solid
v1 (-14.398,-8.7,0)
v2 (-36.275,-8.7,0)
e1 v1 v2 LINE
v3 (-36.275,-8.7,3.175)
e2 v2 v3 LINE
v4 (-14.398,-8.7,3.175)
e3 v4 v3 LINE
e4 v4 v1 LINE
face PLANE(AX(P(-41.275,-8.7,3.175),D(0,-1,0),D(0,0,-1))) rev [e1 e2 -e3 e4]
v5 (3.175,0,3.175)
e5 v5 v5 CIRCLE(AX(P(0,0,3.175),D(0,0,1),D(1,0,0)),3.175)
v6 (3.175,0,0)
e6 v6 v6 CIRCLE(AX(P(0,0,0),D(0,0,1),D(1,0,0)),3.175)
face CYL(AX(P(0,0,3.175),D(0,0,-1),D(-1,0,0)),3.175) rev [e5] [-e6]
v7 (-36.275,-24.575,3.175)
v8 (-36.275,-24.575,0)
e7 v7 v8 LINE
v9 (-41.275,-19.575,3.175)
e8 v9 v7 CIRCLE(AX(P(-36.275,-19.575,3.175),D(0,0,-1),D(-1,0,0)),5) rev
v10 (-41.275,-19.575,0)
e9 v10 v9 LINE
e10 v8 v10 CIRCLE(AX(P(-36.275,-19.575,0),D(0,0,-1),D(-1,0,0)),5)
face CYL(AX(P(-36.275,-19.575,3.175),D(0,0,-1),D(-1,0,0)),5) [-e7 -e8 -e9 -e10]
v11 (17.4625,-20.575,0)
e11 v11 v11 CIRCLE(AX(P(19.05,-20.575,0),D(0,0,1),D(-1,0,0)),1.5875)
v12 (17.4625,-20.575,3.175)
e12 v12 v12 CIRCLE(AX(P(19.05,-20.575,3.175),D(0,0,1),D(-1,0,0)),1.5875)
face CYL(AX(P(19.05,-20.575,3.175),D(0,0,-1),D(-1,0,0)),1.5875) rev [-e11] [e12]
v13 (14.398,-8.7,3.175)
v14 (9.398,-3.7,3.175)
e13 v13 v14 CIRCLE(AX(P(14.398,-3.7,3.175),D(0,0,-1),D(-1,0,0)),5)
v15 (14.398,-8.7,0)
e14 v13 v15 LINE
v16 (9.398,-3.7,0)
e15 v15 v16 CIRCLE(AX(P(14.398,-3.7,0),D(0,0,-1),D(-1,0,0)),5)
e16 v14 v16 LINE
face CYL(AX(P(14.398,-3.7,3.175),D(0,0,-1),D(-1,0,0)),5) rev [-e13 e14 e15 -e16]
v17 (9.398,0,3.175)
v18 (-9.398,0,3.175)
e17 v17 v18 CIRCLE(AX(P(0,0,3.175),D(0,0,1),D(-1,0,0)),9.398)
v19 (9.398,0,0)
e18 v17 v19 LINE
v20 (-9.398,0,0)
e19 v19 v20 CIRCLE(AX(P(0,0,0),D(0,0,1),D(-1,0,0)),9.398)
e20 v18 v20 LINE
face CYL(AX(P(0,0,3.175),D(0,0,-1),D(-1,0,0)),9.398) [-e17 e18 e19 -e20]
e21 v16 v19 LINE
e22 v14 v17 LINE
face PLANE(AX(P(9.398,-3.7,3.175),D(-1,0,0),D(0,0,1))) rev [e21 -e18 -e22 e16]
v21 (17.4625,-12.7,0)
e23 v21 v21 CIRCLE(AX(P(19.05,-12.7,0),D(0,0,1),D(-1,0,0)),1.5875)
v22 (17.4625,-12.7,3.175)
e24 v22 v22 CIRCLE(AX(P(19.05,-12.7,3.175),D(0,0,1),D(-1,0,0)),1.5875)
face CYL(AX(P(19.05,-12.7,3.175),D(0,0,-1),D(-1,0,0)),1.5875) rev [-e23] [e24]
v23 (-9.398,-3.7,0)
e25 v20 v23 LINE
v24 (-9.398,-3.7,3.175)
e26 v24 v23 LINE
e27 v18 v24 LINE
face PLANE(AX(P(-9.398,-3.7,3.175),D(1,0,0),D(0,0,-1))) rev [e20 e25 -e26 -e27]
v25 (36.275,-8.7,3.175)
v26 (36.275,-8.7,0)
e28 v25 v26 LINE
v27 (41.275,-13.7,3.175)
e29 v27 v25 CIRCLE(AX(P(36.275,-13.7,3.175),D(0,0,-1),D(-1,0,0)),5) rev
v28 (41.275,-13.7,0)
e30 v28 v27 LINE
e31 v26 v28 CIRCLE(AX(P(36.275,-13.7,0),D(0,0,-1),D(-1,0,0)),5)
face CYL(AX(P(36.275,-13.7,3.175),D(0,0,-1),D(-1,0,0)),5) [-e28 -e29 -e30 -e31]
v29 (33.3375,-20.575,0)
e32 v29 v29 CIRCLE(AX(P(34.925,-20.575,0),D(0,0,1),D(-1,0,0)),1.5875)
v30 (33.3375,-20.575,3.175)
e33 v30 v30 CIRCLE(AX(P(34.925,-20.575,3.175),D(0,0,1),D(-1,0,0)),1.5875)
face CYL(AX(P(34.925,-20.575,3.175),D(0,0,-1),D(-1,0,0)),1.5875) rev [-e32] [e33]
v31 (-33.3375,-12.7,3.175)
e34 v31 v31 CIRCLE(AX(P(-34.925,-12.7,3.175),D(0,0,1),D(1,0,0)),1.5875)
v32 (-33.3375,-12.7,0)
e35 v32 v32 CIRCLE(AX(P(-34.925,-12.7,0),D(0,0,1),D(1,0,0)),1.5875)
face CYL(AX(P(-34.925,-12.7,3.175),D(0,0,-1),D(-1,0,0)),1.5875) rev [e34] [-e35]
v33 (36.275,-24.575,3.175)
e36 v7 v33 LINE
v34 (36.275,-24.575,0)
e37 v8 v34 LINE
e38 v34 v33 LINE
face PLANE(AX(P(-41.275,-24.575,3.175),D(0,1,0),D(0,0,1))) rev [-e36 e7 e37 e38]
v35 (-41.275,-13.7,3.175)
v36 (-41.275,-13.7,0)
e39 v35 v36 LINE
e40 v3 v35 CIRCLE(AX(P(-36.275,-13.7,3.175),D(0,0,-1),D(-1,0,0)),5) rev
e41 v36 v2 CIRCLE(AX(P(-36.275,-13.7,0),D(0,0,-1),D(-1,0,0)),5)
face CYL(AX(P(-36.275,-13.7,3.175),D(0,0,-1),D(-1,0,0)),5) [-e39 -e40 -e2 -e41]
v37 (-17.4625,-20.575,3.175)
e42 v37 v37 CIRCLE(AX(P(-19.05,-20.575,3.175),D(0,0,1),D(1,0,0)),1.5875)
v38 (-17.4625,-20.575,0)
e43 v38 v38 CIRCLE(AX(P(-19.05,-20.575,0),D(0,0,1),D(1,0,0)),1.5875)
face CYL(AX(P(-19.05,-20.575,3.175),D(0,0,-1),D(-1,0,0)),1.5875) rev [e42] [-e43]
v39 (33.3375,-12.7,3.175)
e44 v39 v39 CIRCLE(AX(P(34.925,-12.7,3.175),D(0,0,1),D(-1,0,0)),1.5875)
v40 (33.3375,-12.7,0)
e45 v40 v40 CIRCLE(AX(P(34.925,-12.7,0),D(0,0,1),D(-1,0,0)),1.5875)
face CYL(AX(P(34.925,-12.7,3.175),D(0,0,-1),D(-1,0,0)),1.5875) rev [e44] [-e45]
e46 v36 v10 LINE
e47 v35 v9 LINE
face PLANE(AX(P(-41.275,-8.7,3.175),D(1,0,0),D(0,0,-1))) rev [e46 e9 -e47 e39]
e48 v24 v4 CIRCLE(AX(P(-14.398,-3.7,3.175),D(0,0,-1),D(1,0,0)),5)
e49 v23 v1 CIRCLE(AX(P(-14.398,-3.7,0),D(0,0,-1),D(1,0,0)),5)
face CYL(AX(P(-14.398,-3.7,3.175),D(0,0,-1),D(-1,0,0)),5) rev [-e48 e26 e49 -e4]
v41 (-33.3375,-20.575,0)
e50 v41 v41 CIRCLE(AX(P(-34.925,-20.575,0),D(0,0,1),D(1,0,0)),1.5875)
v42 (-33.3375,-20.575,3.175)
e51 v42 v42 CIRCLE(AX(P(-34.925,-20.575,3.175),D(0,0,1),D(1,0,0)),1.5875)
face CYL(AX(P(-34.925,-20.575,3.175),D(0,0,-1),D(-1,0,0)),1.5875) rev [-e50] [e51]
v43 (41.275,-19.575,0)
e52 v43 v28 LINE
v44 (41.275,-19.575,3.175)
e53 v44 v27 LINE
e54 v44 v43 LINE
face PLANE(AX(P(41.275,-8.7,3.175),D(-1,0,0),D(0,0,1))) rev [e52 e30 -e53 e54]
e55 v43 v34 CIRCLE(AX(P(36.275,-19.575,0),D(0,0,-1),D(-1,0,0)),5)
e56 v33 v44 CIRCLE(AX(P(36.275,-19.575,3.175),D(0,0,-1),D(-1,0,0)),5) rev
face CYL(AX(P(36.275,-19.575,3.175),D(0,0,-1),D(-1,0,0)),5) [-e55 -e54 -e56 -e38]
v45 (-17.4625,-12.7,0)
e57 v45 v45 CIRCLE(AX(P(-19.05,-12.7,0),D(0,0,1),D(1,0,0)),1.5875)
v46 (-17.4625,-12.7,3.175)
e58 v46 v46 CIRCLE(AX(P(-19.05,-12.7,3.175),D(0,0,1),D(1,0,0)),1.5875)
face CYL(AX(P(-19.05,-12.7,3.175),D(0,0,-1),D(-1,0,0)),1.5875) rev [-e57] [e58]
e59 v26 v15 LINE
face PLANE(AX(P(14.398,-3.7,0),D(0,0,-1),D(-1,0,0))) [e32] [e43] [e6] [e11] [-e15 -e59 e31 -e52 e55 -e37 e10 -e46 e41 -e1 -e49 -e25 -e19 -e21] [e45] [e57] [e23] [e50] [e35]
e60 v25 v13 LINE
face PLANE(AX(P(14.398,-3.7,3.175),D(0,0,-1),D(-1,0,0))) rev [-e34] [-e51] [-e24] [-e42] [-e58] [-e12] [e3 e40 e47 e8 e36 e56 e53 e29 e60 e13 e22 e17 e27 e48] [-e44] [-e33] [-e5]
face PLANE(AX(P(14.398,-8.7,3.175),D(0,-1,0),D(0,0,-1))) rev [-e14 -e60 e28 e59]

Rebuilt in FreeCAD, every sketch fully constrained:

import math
import FreeCAD as App
import Part
import Sketcher

V = App.Vector
Q = App.Units.Quantity


def edges_at(feature, points):
    """Names of the edges that pass closest to the given points."""
    edges = feature.Shape.Edges
    near = lambda p: min(range(len(edges)), key=lambda i: edges[i].distToShape(Part.Vertex(*p))[0])
    return sorted({f"Edge{near(p) + 1}" for p in points})

doc = App.newDocument("Part")
body = doc.addObject("PartDesign::Body", "Body")

# Sketch on XY plane
sketch1 = body.newObject("Sketcher::SketchObject", "Sketch")
sketch1.AttachmentSupport = (doc.getObject("XY_Plane"), [""])
sketch1.MapMode = "FlatFace"
sketch1.addGeometry(Part.LineSegment(V(-14.4, -8.7, 0), V(-41.3, -8.7, 0)), False)
sketch1.addGeometry(Part.LineSegment(V(-41.3, -8.7, 0), V(-41.3, -24.6, 0)), False)
sketch1.addGeometry(Part.LineSegment(V(-41.3, -24.6, 0), V(41.3, -24.6, 0)), False)
sketch1.addGeometry(Part.LineSegment(V(41.3, -24.6, 0), V(41.3, -8.7, 0)), False)
sketch1.addGeometry(Part.LineSegment(V(41.3, -8.7, 0), V(14.4, -8.7, 0)), False)
sketch1.addGeometry(Part.ArcOfCircle(Part.Circle(V(14.4, -3.7, 0), V(0, 0, 1), 5), math.radians(180), math.radians(270)), False)
sketch1.addGeometry(Part.LineSegment(V(9.4, -3.7, 0), V(9.4, 0, 0)), False)
sketch1.addGeometry(Part.ArcOfCircle(Part.Circle(V(0, 0, 0), V(0, 0, 1), 9.4), math.radians(0), math.radians(180)), False)
sketch1.addGeometry(Part.LineSegment(V(-9.4, 0, 0), V(-9.4, -3.7, 0)), False)
sketch1.addGeometry(Part.ArcOfCircle(Part.Circle(V(-14.4, -3.7, 0), V(0, 0, 1), 5), math.radians(-90), math.radians(0)), False)
sketch1.addGeometry(Part.Circle(V(34.9, -20.6, 0), V(0, 0, 1), 1.6), False)
sketch1.addGeometry(Part.Circle(V(19.1, -20.6, 0), V(0, 0, 1), 1.6), False)
sketch1.addGeometry(Part.Circle(V(34.9, -12.7, 0), V(0, 0, 1), 1.6), False)
sketch1.addGeometry(Part.Circle(V(19.1, -12.7, 0), V(0, 0, 1), 1.6), False)
sketch1.addGeometry(Part.Circle(V(-19.1, -20.6, 0), V(0, 0, 1), 1.6), False)
sketch1.addGeometry(Part.Circle(V(-34.9, -20.6, 0), V(0, 0, 1), 1.6), False)
sketch1.addGeometry(Part.Circle(V(-19.1, -12.7, 0), V(0, 0, 1), 1.6), False)
sketch1.addGeometry(Part.Circle(V(-34.9, -12.7, 0), V(0, 0, 1), 1.6), False)
sketch1.addGeometry(Part.Circle(V(0, 0, 0), V(0, 0, 1), 3.2), False)
sketch1.addConstraint(Sketcher.Constraint("Coincident", 0, 2, 1, 1))
sketch1.addConstraint(Sketcher.Constraint("Coincident", 1, 2, 2, 1))
sketch1.addConstraint(Sketcher.Constraint("Coincident", 2, 2, 3, 1))
sketch1.addConstraint(Sketcher.Constraint("Coincident", 3, 2, 4, 1))
sketch1.addConstraint(Sketcher.Constraint("Tangent", 4, 2, 5, 2))
sketch1.addConstraint(Sketcher.Constraint("Tangent", 5, 1, 6, 1))
sketch1.addConstraint(Sketcher.Constraint("Tangent", 6, 2, 7, 1))
sketch1.addConstraint(Sketcher.Constraint("Tangent", 7, 2, 8, 1))
sketch1.addConstraint(Sketcher.Constraint("Tangent", 8, 2, 9, 2))
sketch1.addConstraint(Sketcher.Constraint("Tangent", 9, 1, 0, 1))
sketch1.addConstraint(Sketcher.Constraint("Horizontal", 0))
sketch1.addConstraint(Sketcher.Constraint("Vertical", 1))
sketch1.addConstraint(Sketcher.Constraint("Horizontal", 2))
sketch1.addConstraint(Sketcher.Constraint("Vertical", 3))
sketch1.addConstraint(Sketcher.Constraint("Horizontal", 4))
sketch1.addConstraint(Sketcher.Constraint("Vertical", 6))
sketch1.addConstraint(Sketcher.Constraint("Vertical", 8))
sketch1.addConstraint(Sketcher.Constraint("Coincident", 7, 3, -1, 1))
sketch1.addConstraint(Sketcher.Constraint("Coincident", 18, 3, -1, 1))
sketch1.addConstraint(Sketcher.Constraint("Equal", 5, 9))
sketch1.addConstraint(Sketcher.Constraint("Equal", 10, 11))
sketch1.addConstraint(Sketcher.Constraint("Equal", 11, 12))
sketch1.addConstraint(Sketcher.Constraint("Equal", 12, 13))
sketch1.addConstraint(Sketcher.Constraint("Equal", 13, 14))
sketch1.addConstraint(Sketcher.Constraint("Equal", 14, 15))
sketch1.addConstraint(Sketcher.Constraint("Equal", 15, 16))
sketch1.addConstraint(Sketcher.Constraint("Equal", 16, 17))
sketch1.addConstraint(Sketcher.Constraint("Symmetric", 11, 3, 14, 3, -2))
sketch1.addConstraint(Sketcher.Constraint("Symmetric", 10, 3, 15, 3, -2))
sketch1.addConstraint(Sketcher.Constraint("Symmetric", 13, 3, 16, 3, -2))
sketch1.addConstraint(Sketcher.Constraint("Symmetric", 12, 3, 17, 3, -2))
sketch1.addConstraint(Sketcher.Constraint("Symmetric", 0, 2, 3, 2, -2))
sketch1.addConstraint(Sketcher.Constraint("Horizontal", 10, 3, 11, 3))
sketch1.addConstraint(Sketcher.Constraint("Horizontal", 12, 3, 13, 3))
sketch1.addConstraint(Sketcher.Constraint("Vertical", 10, 3, 12, 3))
sketch1.addConstraint(Sketcher.Constraint("Vertical", 11, 3, 13, 3))
sketch1.addConstraint(Sketcher.Constraint("Diameter", 18, Q("0.25 in")))
sketch1.addConstraint(Sketcher.Constraint("Radius", 7, Q("0.37 in")))
sketch1.addConstraint(Sketcher.Constraint("Diameter", 10, Q("0.125 in")))
sketch1.addConstraint(Sketcher.Constraint("DistanceX", 2, 1, 2, 2, Q("3.25 in")))
sketch1.addConstraint(Sketcher.Constraint("DistanceY", 12, 3, -1, 1, Q("0.5 in")))
sketch1.addConstraint(Sketcher.Constraint("DistanceX", 14, 3, 11, 3, Q("1.5 in")))
sketch1.addConstraint(Sketcher.Constraint("DistanceY", 1, 2, 1, 1, Q("0.625 in")))
sketch1.addConstraint(Sketcher.Constraint("Radius", 5, Q("5 mm")))
sketch1.addConstraint(Sketcher.Constraint("DistanceX", 0, 2, 17, 3, Q("0.25 in")))
sketch1.addConstraint(Sketcher.Constraint("DistanceY", 6, 1, 6, 2, Q("3.7 mm")))
sketch1.addConstraint(Sketcher.Constraint("DistanceY", 10, 3, -1, 1, Q("20.575 mm")))
pad1 = body.newObject("PartDesign::Pad", "Pad")
pad1.Profile = sketch1
pad1.Length = Q("0.125 in")
doc.recompute()

fillet = body.newObject("PartDesign::Fillet", "Fillet")
fillet.Base = (pad1, edges_at(pad1, [
    (-41.275, -8.7, 1.587),
    (41.275, -8.7, 1.587),
    (41.275, -24.575, 1.587),
    (-41.275, -24.575, 1.587),
]))
fillet.Radius = 5

doc.recompute()
